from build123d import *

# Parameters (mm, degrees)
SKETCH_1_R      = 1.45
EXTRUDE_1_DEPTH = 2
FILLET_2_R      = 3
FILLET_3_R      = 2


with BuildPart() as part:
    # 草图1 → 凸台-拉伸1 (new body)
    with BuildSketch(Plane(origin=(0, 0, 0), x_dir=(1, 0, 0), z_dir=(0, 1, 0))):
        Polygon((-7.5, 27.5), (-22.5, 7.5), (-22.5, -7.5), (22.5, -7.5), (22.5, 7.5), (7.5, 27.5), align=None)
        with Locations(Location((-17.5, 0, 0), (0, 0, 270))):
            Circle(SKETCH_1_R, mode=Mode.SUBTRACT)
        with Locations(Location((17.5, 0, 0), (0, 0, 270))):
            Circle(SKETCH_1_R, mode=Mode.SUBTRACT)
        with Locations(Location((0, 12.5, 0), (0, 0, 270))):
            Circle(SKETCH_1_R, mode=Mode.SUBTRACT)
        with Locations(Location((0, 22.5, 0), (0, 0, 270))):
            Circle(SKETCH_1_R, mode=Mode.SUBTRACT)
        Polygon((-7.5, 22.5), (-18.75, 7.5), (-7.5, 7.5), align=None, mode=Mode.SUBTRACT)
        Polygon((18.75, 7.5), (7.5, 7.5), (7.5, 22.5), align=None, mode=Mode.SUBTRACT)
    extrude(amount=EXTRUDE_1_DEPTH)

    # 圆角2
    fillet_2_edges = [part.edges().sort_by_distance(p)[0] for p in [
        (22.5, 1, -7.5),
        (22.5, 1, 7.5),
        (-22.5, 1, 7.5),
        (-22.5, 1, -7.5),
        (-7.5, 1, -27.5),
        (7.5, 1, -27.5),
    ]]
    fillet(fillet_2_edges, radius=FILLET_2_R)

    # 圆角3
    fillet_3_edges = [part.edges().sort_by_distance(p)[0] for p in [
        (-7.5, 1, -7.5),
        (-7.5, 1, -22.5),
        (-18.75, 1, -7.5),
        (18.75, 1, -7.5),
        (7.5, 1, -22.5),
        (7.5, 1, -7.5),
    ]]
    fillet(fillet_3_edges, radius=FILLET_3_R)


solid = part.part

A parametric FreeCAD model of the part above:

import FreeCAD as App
import Part
import Sketcher
Q = App.Units.Quantity


def edges_at(feature, points):
    """Names of the edges that pass closest to the given points."""
    edges = feature.Shape.Edges
    near = lambda p: min(range(len(edges)), key=lambda i: edges[i].distToShape(Part.Vertex(*p))[0])
    return sorted({f"Edge{near(p) + 1}" for p in points})

doc = App.newDocument("Part")
body = doc.addObject("PartDesign::Body", "Body")

sketch1 = body.newObject("Sketcher::SketchObject", "Sketch")
sketch1.AttachmentSupport = (doc.getObject("XZ_Plane"), [""])
sketch1.MapMode = "FlatFace"
sketch1.addGeometry(Part.LineSegment(App.Vector(-7.5, -27.5, 0), App.Vector(-22.5, -7.5, 0)), False)
sketch1.addGeometry(Part.LineSegment(App.Vector(-22.5, -7.5, 0), App.Vector(-22.5, 7.5, 0)), False)
sketch1.addGeometry(Part.LineSegment(App.Vector(-22.5, 7.5, 0), App.Vector(22.5, 7.5, 0)), False)
sketch1.addGeometry(Part.LineSegment(App.Vector(22.5, 7.5, 0), App.Vector(22.5, -7.5, 0)), False)
sketch1.addGeometry(Part.LineSegment(App.Vector(22.5, -7.5, 0), App.Vector(7.5, -27.5, 0)), False)
sketch1.addGeometry(Part.LineSegment(App.Vector(7.5, -27.5, 0), App.Vector(-7.5, -27.5, 0)), False)
sketch1.addGeometry(Part.Circle(App.Vector(-17.5, 0, 0), App.Vector(0, 0, 1), 1.4), False)
sketch1.addGeometry(Part.Circle(App.Vector(17.5, 0, 0), App.Vector(0, 0, 1), 1.4), False)
sketch1.addGeometry(Part.LineSegment(App.Vector(-18.8, -7.5, 0), App.Vector(-7.5, -22.5, 0)), False)
sketch1.addGeometry(Part.LineSegment(App.Vector(-7.5, -22.5, 0), App.Vector(-7.5, -7.5, 0)), False)
sketch1.addGeometry(Part.LineSegment(App.Vector(-7.5, -7.5, 0), App.Vector(-18.8, -7.5, 0)), False)
sketch1.addGeometry(Part.Circle(App.Vector(0, -12.5, 0), App.Vector(0, 0, 1), 1.4), False)
sketch1.addGeometry(Part.LineSegment(App.Vector(7.5, -22.5, 0), App.Vector(18.8, -7.5, 0)), False)
sketch1.addGeometry(Part.LineSegment(App.Vector(18.8, -7.5, 0), App.Vector(7.5, -7.5, 0)), False)
sketch1.addGeometry(Part.LineSegment(App.Vector(7.5, -7.5, 0), App.Vector(7.5, -22.5, 0)), False)
sketch1.addGeometry(Part.Circle(App.Vector(0, -22.5, 0), App.Vector(0, 0, 1), 1.4), False)
sketch1.addConstraint(Sketcher.Constraint("Coincident", 0, 2, 1, 1))
sketch1.addConstraint(Sketcher.Constraint("Coincident", 1, 2, 2, 1))
sketch1.addConstraint(Sketcher.Constraint("Coincident", 2, 2, 3, 1))
sketch1.addConstraint(Sketcher.Constraint("Coincident", 3, 2, 4, 1))
sketch1.addConstraint(Sketcher.Constraint("Coincident", 4, 2, 5, 1))
sketch1.addConstraint(Sketcher.Constraint("Coincident", 5, 2, 0, 1))
sketch1.addConstraint(Sketcher.Constraint("Coincident", 8, 2, 9, 1))
sketch1.addConstraint(Sketcher.Constraint("Coincident", 9, 2, 10, 1))
sketch1.addConstraint(Sketcher.Constraint("Coincident", 10, 2, 8, 1))
sketch1.addConstraint(Sketcher.Constraint("Coincident", 12, 2, 13, 1))
sketch1.addConstraint(Sketcher.Constraint("Coincident", 13, 2, 14, 1))
sketch1.addConstraint(Sketcher.Constraint("Coincident", 14, 2, 12, 1))
sketch1.addConstraint(Sketcher.Constraint("Vertical", 1))
sketch1.addConstraint(Sketcher.Constraint("Horizontal", 2))
sketch1.addConstraint(Sketcher.Constraint("Vertical", 3))
sketch1.addConstraint(Sketcher.Constraint("Horizontal", 5))
sketch1.addConstraint(Sketcher.Constraint("Vertical", 9))
sketch1.addConstraint(Sketcher.Constraint("Horizontal", 10))
sketch1.addConstraint(Sketcher.Constraint("Horizontal", 13))
sketch1.addConstraint(Sketcher.Constraint("Vertical", 14))
sketch1.addConstraint(Sketcher.Constraint("Equal", 6, 7))
sketch1.addConstraint(Sketcher.Constraint("Equal", 7, 11))
sketch1.addConstraint(Sketcher.Constraint("Equal", 11, 15))
sketch1.addConstraint(Sketcher.Constraint("Symmetric", 6, 3, 7, 3, -1, 1))
sketch1.addConstraint(Sketcher.Constraint("Symmetric", 0, 2, 2, 2, -1, 1))
sketch1.addConstraint(Sketcher.Constraint("Symmetric", 10, 2, 12, 2, -2))
sketch1.addConstraint(Sketcher.Constraint("Symmetric", 8, 2, 14, 2, -2))
sketch1.addConstraint(Sketcher.Constraint("PointOnObject", 6, 3, -1))
sketch1.addConstraint(Sketcher.Constraint("PointOnObject", 11, 3, -2))
sketch1.addConstraint(Sketcher.Constraint("PointOnObject", 15, 3, -2))
sketch1.addConstraint(Sketcher.Constraint("Parallel", 0, 8))
sketch1.addConstraint(Sketcher.Constraint("Parallel", 4, 12))
sketch1.addConstraint(Sketcher.Constraint("Horizontal", 0, 2, 3, 2))
sketch1.addConstraint(Sketcher.Constraint("Horizontal", 15, 3, 8, 2))
sketch1.addConstraint(Sketcher.Constraint("Horizontal", 3, 2, 9, 2))
sketch1.addConstraint(Sketcher.Constraint("Vertical", 5, 2, 8, 2))
sketch1.addConstraint(Sketcher.Constraint("Equal", 5, 1))
sketch1.addConstraint(Sketcher.Constraint("Equal", 3, 9))
sketch1.addConstraint(Sketcher.Constraint("Diameter", 6, Q("2.9 mm")))
sketch1.addConstraint(Sketcher.Constraint("DistanceX", 2, 1, 2, 2, Q("45 mm")))
sketch1.addConstraint(Sketcher.Constraint("DistanceX", 5, 2, 5, 1, Q("15 mm")))
sketch1.addConstraint(Sketcher.Constraint("Distance", 0, Q("25 mm")))
sketch1.addConstraint(Sketcher.Constraint("DistanceX", 6, 3, 7, 3, Q("35 mm")))
sketch1.addConstraint(Sketcher.Constraint("DistanceY", 15, 3, 11, 3, Q("10 mm")))
pad1 = body.newObject("PartDesign::Pad", "Pad")
pad1.Profile = sketch1
pad1.Length = 2
pad1.Reversed = True
doc.recompute()

fillet = body.newObject("PartDesign::Fillet", "Fillet")
fillet.Base = (pad1, edges_at(pad1, [
    (22.5, 1, -7.5),
    (22.5, 1, 7.5),
    (-22.5, 1, 7.5),
    (-22.5, 1, -7.5),
    (-7.5, 1, -27.5),
    (7.5, 1, -27.5),
]))
fillet.Radius = 3
doc.recompute()

fillet2 = body.newObject("PartDesign::Fillet", "Fillet001")
fillet2.Base = (fillet, edges_at(fillet, [
    (-7.5, 1, -7.5),
    (-7.5, 1, -22.5),
    (-18.75, 1, -7.5),
    (18.75, 1, -7.5),
    (7.5, 1, -22.5),
    (7.5, 1, -7.5),
]))
fillet2.Radius = 2

doc.recompute()
